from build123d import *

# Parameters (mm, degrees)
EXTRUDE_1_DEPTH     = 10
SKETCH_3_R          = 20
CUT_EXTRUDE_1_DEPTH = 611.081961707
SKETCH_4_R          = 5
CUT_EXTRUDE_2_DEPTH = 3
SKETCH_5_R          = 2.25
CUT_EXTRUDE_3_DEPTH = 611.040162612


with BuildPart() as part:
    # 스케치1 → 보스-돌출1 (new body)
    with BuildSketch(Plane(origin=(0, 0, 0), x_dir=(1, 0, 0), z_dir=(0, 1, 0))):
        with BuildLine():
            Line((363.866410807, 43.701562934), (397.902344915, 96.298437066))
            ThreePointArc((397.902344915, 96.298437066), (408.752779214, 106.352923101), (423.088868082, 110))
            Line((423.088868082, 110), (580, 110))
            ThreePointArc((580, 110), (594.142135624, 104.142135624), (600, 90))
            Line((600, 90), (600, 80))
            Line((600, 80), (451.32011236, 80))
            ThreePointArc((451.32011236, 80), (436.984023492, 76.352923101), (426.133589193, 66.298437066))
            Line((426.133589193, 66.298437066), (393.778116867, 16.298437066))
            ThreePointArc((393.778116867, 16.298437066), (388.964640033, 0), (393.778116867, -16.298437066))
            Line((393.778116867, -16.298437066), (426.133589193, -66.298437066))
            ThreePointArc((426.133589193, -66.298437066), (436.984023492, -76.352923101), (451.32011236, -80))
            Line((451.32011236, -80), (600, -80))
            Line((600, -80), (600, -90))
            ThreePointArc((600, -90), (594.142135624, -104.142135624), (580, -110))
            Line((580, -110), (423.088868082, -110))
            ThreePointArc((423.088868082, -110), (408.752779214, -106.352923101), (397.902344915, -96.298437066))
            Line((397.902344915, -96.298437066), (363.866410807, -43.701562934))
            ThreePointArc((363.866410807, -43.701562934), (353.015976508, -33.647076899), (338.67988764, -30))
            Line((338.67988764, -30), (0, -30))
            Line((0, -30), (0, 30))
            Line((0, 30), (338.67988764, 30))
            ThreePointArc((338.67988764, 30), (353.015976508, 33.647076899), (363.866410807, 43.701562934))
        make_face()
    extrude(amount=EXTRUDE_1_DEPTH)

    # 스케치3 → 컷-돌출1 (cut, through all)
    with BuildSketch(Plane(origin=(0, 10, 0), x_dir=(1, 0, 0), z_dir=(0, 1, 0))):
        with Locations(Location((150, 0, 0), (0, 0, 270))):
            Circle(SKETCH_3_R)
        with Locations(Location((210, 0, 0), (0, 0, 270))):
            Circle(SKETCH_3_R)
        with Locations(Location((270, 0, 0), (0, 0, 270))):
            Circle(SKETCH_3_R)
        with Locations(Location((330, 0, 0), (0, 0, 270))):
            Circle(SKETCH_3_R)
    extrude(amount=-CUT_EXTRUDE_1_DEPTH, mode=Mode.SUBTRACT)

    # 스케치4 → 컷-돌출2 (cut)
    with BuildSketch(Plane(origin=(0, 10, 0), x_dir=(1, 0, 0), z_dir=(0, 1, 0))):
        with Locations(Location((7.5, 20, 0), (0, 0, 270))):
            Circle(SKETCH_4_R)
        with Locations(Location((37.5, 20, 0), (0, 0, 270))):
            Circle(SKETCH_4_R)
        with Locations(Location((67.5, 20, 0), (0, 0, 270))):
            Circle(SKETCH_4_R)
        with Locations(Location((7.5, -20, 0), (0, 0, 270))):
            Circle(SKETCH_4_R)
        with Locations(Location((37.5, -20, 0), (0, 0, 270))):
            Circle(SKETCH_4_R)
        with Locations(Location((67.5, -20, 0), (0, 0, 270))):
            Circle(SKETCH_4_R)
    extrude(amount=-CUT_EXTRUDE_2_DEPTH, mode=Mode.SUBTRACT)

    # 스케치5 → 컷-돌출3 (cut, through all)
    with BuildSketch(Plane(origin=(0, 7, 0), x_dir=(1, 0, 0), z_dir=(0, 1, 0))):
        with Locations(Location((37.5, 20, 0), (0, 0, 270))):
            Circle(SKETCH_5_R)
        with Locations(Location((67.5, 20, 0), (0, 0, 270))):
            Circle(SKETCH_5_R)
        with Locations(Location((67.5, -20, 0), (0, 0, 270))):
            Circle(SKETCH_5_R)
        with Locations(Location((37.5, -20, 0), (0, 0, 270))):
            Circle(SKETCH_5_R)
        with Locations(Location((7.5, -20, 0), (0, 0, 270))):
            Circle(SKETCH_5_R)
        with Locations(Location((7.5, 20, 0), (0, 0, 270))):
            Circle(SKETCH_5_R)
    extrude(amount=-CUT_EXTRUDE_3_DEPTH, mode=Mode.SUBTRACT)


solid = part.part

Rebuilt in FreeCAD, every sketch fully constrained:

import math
import FreeCAD as App
import Part
import Sketcher

doc = App.newDocument("Part")
params = doc.addObject("Spreadsheet::Sheet", "Params")
for row, (alias, value) in enumerate([
    ("sketch1_radius", "30 mm"),
    ("sketch1_radius2", "20 mm"),
    ("sketch1_height", "60 mm"),
    ("pad1_length", "10 mm"),
    ("sketch2_diameter", "40 mm"),
    ("sketch3_diameter", "10 mm"),
    ("pocket2_length", "3 mm"),
    ("sketch4_diameter", "4.5 mm"),
], start=1):
    params.set(f"A{row}", alias)
    params.set(f"B{row}", "=" + value)
    params.setAlias(f"B{row}", alias)

body = doc.addObject("PartDesign::Body", "Body")

sketch1 = body.newObject("Sketcher::SketchObject", "Sketch")
sketch1.AttachmentSupport = (doc.getObject("XZ_Plane"), [""])
sketch1.MapMode = "FlatFace"
sketch1.addGeometry(Part.LineSegment(App.Vector(397.902345, -96.298437, 0), App.Vector(363.866411, -43.701563, 0)), False)
sketch1.addGeometry(Part.ArcOfCircle(Part.Circle(App.Vector(338.679888, -60, 0), App.Vector(0, 0, 1), 30), math.radians(32.907287), math.radians(90)), False)
sketch1.addGeometry(Part.LineSegment(App.Vector(338.679888, -30, 0), App.Vector(0, -30, 0)), False)
sketch1.addGeometry(Part.LineSegment(App.Vector(0, -30, 0), App.Vector(0, 30, 0)), False)
sketch1.addGeometry(Part.LineSegment(App.Vector(0, 30, 0), App.Vector(338.679888, 30, 0)), False)
sketch1.addGeometry(Part.ArcOfCircle(Part.Circle(App.Vector(338.679888, 60, 0), App.Vector(0, 0, 1), 30), math.radians(-90), math.radians(-32.907287)), False)
sketch1.addGeometry(Part.LineSegment(App.Vector(363.866411, 43.701563, 0), App.Vector(397.902345, 96.298437, 0)), False)
sketch1.addGeometry(Part.ArcOfCircle(Part.Circle(App.Vector(423.088868, 80, 0), App.Vector(0, 0, 1), 30), math.radians(90), math.radians(147.092713)), False)
sketch1.addGeometry(Part.LineSegment(App.Vector(423.088868, 110, 0), App.Vector(580, 110, 0)), False)
sketch1.addGeometry(Part.ArcOfCircle(Part.Circle(App.Vector(580, 90, 0), App.Vector(0, 0, 1), 20), math.radians(0), math.radians(90)), False)
sketch1.addGeometry(Part.LineSegment(App.Vector(600, 90, 0), App.Vector(600, 80, 0)), False)
sketch1.addGeometry(Part.LineSegment(App.Vector(600, 80, 0), App.Vector(451.320112, 80, 0)), False)
sketch1.addGeometry(Part.ArcOfCircle(Part.Circle(App.Vector(451.320112, 50, 0), App.Vector(0, 0, 1), 30), math.radians(90), math.radians(147.092713)), False)
sketch1.addGeometry(Part.LineSegment(App.Vector(426.133589, 66.298437, 0), App.Vector(393.778117, 16.298437, 0)), False)
sketch1.addGeometry(Part.ArcOfCircle(Part.Circle(App.Vector(418.96464, 0, 0), App.Vector(0, 0, 1), 30), math.radians(147.092713), math.radians(212.907287)), False)
sketch1.addGeometry(Part.LineSegment(App.Vector(393.778117, -16.298437, 0), App.Vector(426.133589, -66.298437, 0)), False)
sketch1.addGeometry(Part.ArcOfCircle(Part.Circle(App.Vector(451.320112, -50, 0), App.Vector(0, 0, 1), 30), math.radians(-147.092713), math.radians(-90)), False)
sketch1.addGeometry(Part.LineSegment(App.Vector(451.320112, -80, 0), App.Vector(600, -80, 0)), False)
sketch1.addGeometry(Part.LineSegment(App.Vector(600, -80, 0), App.Vector(600, -90, 0)), False)
sketch1.addGeometry(Part.ArcOfCircle(Part.Circle(App.Vector(580, -90, 0), App.Vector(0, 0, 1), 20), math.radians(-90), math.radians(0)), False)
sketch1.addGeometry(Part.LineSegment(App.Vector(580, -110, 0), App.Vector(423.088868, -110, 0)), False)
sketch1.addGeometry(Part.ArcOfCircle(Part.Circle(App.Vector(423.088868, -80, 0), App.Vector(0, 0, 1), 30), math.radians(-147.092713), math.radians(-90)), False)
sketch1.addConstraint(Sketcher.Constraint("Tangent", 0, 2, 1, 1))
sketch1.addConstraint(Sketcher.Constraint("Tangent", 1, 2, 2, 1))
sketch1.addConstraint(Sketcher.Constraint("Coincident", 2, 2, 3, 1))
sketch1.addConstraint(Sketcher.Constraint("Coincident", 3, 2, 4, 1))
sketch1.addConstraint(Sketcher.Constraint("Tangent", 4, 2, 5, 1))
sketch1.addConstraint(Sketcher.Constraint("Tangent", 5, 2, 6, 1))
sketch1.addConstraint(Sketcher.Constraint("Tangent", 6, 2, 7, 2))
sketch1.addConstraint(Sketcher.Constraint("Tangent", 7, 1, 8, 1))
sketch1.addConstraint(Sketcher.Constraint("Tangent", 8, 2, 9, 2))
sketch1.addConstraint(Sketcher.Constraint("Tangent", 9, 1, 10, 1))
sketch1.addConstraint(Sketcher.Constraint("Coincident", 10, 2, 11, 1))
sketch1.addConstraint(Sketcher.Constraint("Tangent", 11, 2, 12, 1))
sketch1.addConstraint(Sketcher.Constraint("Tangent", 12, 2, 13, 1))
sketch1.addConstraint(Sketcher.Constraint("Tangent", 13, 2, 14, 1))
sketch1.addConstraint(Sketcher.Constraint("Tangent", 14, 2, 15, 1))
sketch1.addConstraint(Sketcher.Constraint("Tangent", 15, 2, 16, 1))
sketch1.addConstraint(Sketcher.Constraint("Tangent", 16, 2, 17, 1))
sketch1.addConstraint(Sketcher.Constraint("Coincident", 17, 2, 18, 1))
sketch1.addConstraint(Sketcher.Constraint("Tangent", 18, 2, 19, 2))
sketch1.addConstraint(Sketcher.Constraint("Tangent", 19, 1, 20, 1))
sketch1.addConstraint(Sketcher.Constraint("Tangent", 20, 2, 21, 2))
sketch1.addConstraint(Sketcher.Constraint("Tangent", 21, 1, 0, 1))
sketch1.addConstraint(Sketcher.Constraint("Horizontal", 2))
sketch1.addConstraint(Sketcher.Constraint("Vertical", 3))
sketch1.addConstraint(Sketcher.Constraint("Horizontal", 4))
sketch1.addConstraint(Sketcher.Constraint("Horizontal", 8))
sketch1.addConstraint(Sketcher.Constraint("Vertical", 10))
sketch1.addConstraint(Sketcher.Constraint("Horizontal", 11))
sketch1.addConstraint(Sketcher.Constraint("Horizontal", 17))
sketch1.addConstraint(Sketcher.Constraint("Vertical", 18))
sketch1.addConstraint(Sketcher.Constraint("Horizontal", 20))
sketch1.addConstraint(Sketcher.Constraint("Equal", 1, 5))
sketch1.addConstraint(Sketcher.Constraint("Equal", 5, 7))
sketch1.addConstraint(Sketcher.Constraint("Equal", 7, 12))
sketch1.addConstraint(Sketcher.Constraint("Equal", 12, 14))
sketch1.addConstraint(Sketcher.Constraint("Equal", 14, 16))
sketch1.addConstraint(Sketcher.Constraint("Equal", 9, 19))
sketch1.addConstraint(Sketcher.Constraint("Equal", 16, 21))
sketch1.addConstraint(Sketcher.Constraint("Symmetric", 2, 2, 3, 2, -1, 1))
sketch1.addConstraint(Sketcher.Constraint("Symmetric", 12, 3, 16, 3, -1))
sketch1.addConstraint(Sketcher.Constraint("Symmetric", 9, 3, 19, 3, -1))
sketch1.addConstraint(Sketcher.Constraint("Symmetric", 0, 2, 5, 2, -1))
sketch1.addConstraint(Sketcher.Constraint("PointOnObject", 14, 3, -1))
sketch1.addConstraint(Sketcher.Constraint("Parallel", 6, 13))
sketch1.addConstraint(Sketcher.Constraint("Horizontal", 7, 3, 10, 2))
sketch1.addConstraint(Sketcher.Constraint("Radius", 1, 30.0))
sketch1.addConstraint(Sketcher.Constraint("Radius", 9, 20.0))
sketch1.addConstraint(Sketcher.Constraint("DistanceY", 3, 1, 3, 2, 60.0))
sketch1.addConstraint(Sketcher.Constraint("DistanceY", -1, 1, 7, 3, 80.0))
sketch1.addConstraint(Sketcher.Constraint("DistanceX", -1, 1, 9, 3, 580.0))
sketch1.addConstraint(Sketcher.Constraint("DistanceX", 8, 1, 8, 2, 156.911132))
sketch1.addConstraint(Sketcher.Constraint("DistanceX", 0, 2, 16, 3, 87.453702))
sketch1.addConstraint(Sketcher.Constraint("Distance", 0, 62.648831))
sketch1.setExpression("Constraints[45]", "Params.sketch1_radius")
sketch1.setExpression("Constraints[46]", "Params.sketch1_radius2")
sketch1.setExpression("Constraints[47]", "Params.sketch1_height")
pad1 = body.newObject("PartDesign::Pad", "Pad")
pad1.Profile = sketch1
pad1.setExpression("Length", "Params.pad1_length")
pad1.Reversed = True

sketch2 = body.newObject("Sketcher::SketchObject", "Sketch001")
sketch2.AttachmentSupport = (doc.getObject("XZ_Plane"), [""])
sketch2.MapMode = "FlatFace"
sketch2.AttachmentOffset = App.Placement(App.Vector(0, 0, -10), App.Rotation())
sketch2.addGeometry(Part.Circle(App.Vector(150, 0, 0), App.Vector(0, 0, 1), 20), False)
sketch2.addGeometry(Part.Circle(App.Vector(210, 0, 0), App.Vector(0, 0, 1), 20), False)
sketch2.addGeometry(Part.Circle(App.Vector(270, 0, 0), App.Vector(0, 0, 1), 20), False)
sketch2.addGeometry(Part.Circle(App.Vector(330, 0, 0), App.Vector(0, 0, 1), 20), False)
sketch2.addConstraint(Sketcher.Constraint("Equal", 0, 1))
sketch2.addConstraint(Sketcher.Constraint("Equal", 1, 2))
sketch2.addConstraint(Sketcher.Constraint("Equal", 2, 3))
sketch2.addConstraint(Sketcher.Constraint("PointOnObject", 0, 3, -1))
sketch2.addConstraint(Sketcher.Constraint("PointOnObject", 1, 3, -1))
sketch2.addConstraint(Sketcher.Constraint("PointOnObject", 2, 3, -1))
sketch2.addConstraint(Sketcher.Constraint("PointOnObject", 3, 3, -1))
sketch2.addConstraint(Sketcher.Constraint("Diameter", 0, 40.0))
sketch2.addConstraint(Sketcher.Constraint("DistanceX", -1, 1, 0, 3, 150.0))
sketch2.addConstraint(Sketcher.Constraint("DistanceX", -1, 1, 1, 3, 210.0))
sketch2.addConstraint(Sketcher.Constraint("DistanceX", -1, 1, 2, 3, 270.0))
sketch2.addConstraint(Sketcher.Constraint("DistanceX", -1, 1, 3, 3, 330.0))
sketch2.setExpression("Constraints[7]", "Params.sketch2_diameter")
pocket1 = body.newObject("PartDesign::Pocket", "Pocket")
pocket1.Profile = sketch2
pocket1.Type = "ThroughAll"
pocket1.Reversed = True

sketch3 = body.newObject("Sketcher::SketchObject", "Sketch002")
sketch3.AttachmentSupport = (doc.getObject("XZ_Plane"), [""])
sketch3.MapMode = "FlatFace"
sketch3.AttachmentOffset = App.Placement(App.Vector(0, 0, -10), App.Rotation())
sketch3.addGeometry(Part.Circle(App.Vector(7.5, -20, 0), App.Vector(0, 0, 1), 5), False)
sketch3.addGeometry(Part.Circle(App.Vector(37.5, -20, 0), App.Vector(0, 0, 1), 5), False)
sketch3.addGeometry(Part.Circle(App.Vector(67.5, -20, 0), App.Vector(0, 0, 1), 5), False)
sketch3.addGeometry(Part.Circle(App.Vector(7.5, 20, 0), App.Vector(0, 0, 1), 5), False)
sketch3.addGeometry(Part.Circle(App.Vector(37.5, 20, 0), App.Vector(0, 0, 1), 5), False)
sketch3.addGeometry(Part.Circle(App.Vector(67.5, 20, 0), App.Vector(0, 0, 1), 5), False)
sketch3.addConstraint(Sketcher.Constraint("Equal", 0, 1))
sketch3.addConstraint(Sketcher.Constraint("Equal", 1, 2))
sketch3.addConstraint(Sketcher.Constraint("Equal", 2, 3))
sketch3.addConstraint(Sketcher.Constraint("Equal", 3, 4))
sketch3.addConstraint(Sketcher.Constraint("Equal", 4, 5))
sketch3.addConstraint(Sketcher.Constraint("Symmetric", 0, 3, 3, 3, -1))
sketch3.addConstraint(Sketcher.Constraint("Symmetric", 1, 3, 4, 3, -1))
sketch3.addConstraint(Sketcher.Constraint("Symmetric", 2, 3, 5, 3, -1))
sketch3.addConstraint(Sketcher.Constraint("Horizontal", 0, 3, 1, 3))
sketch3.addConstraint(Sketcher.Constraint("Horizontal", 1, 3, 2, 3))
sketch3.addConstraint(Sketcher.Constraint("Diameter", 0, 10.0))
sketch3.addConstraint(Sketcher.Constraint("DistanceY", 0, 3, -1, 1, 20.0))
sketch3.addConstraint(Sketcher.Constraint("DistanceX", 0, 3, 1, 3, 30.0))
sketch3.addConstraint(Sketcher.Constraint("DistanceX", 1, 3, 2, 3, 30.0))
sketch3.addConstraint(Sketcher.Constraint("DistanceX", -1, 1, 0, 3, 7.5))
sketch3.setExpression("Constraints[10]", "Params.sketch3_diameter")
pocket2 = body.newObject("PartDesign::Pocket", "Pocket001")
pocket2.Profile = sketch3
pocket2.setExpression("Length", "Params.pocket2_length")
pocket2.Reversed = True

sketch4 = body.newObject("Sketcher::SketchObject", "Sketch003")
sketch4.AttachmentSupport = (doc.getObject("XZ_Plane"), [""])
sketch4.MapMode = "FlatFace"
sketch4.AttachmentOffset = App.Placement(App.Vector(0, 0, -7), App.Rotation())
sketch4.addGeometry(Part.Circle(App.Vector(37.5, -20, 0), App.Vector(0, 0, 1), 2.25), False)
sketch4.addGeometry(Part.Circle(App.Vector(67.5, -20, 0), App.Vector(0, 0, 1), 2.25), False)
sketch4.addGeometry(Part.Circle(App.Vector(67.5, 20, 0), App.Vector(0, 0, 1), 2.25), False)
sketch4.addGeometry(Part.Circle(App.Vector(37.5, 20, 0), App.Vector(0, 0, 1), 2.25), False)
sketch4.addGeometry(Part.Circle(App.Vector(7.5, 20, 0), App.Vector(0, 0, 1), 2.25), False)
sketch4.addGeometry(Part.Circle(App.Vector(7.5, -20, 0), App.Vector(0, 0, 1), 2.25), False)
sketch4.addConstraint(Sketcher.Constraint("Equal", 0, 1))
sketch4.addConstraint(Sketcher.Constraint("Equal", 1, 2))
sketch4.addConstraint(Sketcher.Constraint("Equal", 2, 3))
sketch4.addConstraint(Sketcher.Constraint("Equal", 3, 4))
sketch4.addConstraint(Sketcher.Constraint("Equal", 4, 5))
sketch4.addConstraint(Sketcher.Constraint("Symmetric", 1, 3, 2, 3, -1))
sketch4.addConstraint(Sketcher.Constraint("Symmetric", 0, 3, 3, 3, -1))
sketch4.addConstraint(Sketcher.Constraint("Symmetric", 4, 3, 5, 3, -1))
sketch4.addConstraint(Sketcher.Constraint("Horizontal", 0, 3, 1, 3))
sketch4.addConstraint(Sketcher.Constraint("Horizontal", 3, 3, 4, 3))
sketch4.addConstraint(Sketcher.Constraint("Diameter", 0, 4.5))
sketch4.addConstraint(Sketcher.Constraint("DistanceY", 0, 3, -1, 1, 20.0))
sketch4.addConstraint(Sketcher.Constraint("DistanceX", 0, 3, 1, 3, 30.0))
sketch4.addConstraint(Sketcher.Constraint("DistanceX", 4, 3, 3, 3, 30.0))
sketch4.addConstraint(Sketcher.Constraint("DistanceX", -1, 1, 0, 3, 37.5))
sketch4.setExpression("Constraints[10]", "Params.sketch4_diameter")
pocket3 = body.newObject("PartDesign::Pocket", "Pocket002")
pocket3.Profile = sketch4
pocket3.Type = "ThroughAll"
pocket3.Reversed = True

doc.recompute()
